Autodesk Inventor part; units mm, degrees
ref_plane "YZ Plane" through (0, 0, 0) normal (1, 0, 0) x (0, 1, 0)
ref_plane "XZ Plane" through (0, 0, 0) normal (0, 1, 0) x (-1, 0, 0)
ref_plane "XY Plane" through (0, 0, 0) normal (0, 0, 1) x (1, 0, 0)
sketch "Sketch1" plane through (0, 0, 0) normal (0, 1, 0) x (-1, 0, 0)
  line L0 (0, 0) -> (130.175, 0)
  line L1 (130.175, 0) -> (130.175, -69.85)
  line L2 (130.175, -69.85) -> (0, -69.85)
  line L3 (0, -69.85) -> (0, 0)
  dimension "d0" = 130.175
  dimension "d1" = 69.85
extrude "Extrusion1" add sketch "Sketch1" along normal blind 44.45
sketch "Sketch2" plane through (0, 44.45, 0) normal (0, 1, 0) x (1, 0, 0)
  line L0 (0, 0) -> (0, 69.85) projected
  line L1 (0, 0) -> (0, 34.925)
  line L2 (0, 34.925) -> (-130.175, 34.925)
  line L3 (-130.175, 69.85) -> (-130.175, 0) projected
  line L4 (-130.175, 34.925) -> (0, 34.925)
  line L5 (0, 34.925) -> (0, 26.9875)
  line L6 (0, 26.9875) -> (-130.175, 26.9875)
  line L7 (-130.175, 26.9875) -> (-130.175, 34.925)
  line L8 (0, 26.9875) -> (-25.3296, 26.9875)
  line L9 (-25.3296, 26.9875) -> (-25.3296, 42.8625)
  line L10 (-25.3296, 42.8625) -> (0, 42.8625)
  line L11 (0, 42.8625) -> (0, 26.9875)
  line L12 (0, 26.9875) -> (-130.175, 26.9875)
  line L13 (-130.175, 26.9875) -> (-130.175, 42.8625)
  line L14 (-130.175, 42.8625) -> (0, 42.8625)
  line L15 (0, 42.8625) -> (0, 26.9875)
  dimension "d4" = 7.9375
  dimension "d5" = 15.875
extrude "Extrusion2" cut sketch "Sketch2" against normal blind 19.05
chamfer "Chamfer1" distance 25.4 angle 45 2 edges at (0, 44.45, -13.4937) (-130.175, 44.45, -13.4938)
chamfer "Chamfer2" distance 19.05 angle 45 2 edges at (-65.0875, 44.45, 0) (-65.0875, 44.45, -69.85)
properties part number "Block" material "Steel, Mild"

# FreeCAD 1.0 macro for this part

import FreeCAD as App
import Part
import Sketcher

V = App.Vector
Q = App.Units.Quantity


def edges_at(feature, points):
    """Names of the edges that pass closest to the given points."""
    edges = feature.Shape.Edges
    near = lambda p: min(range(len(edges)), key=lambda i: edges[i].distToShape(Part.Vertex(*p))[0])
    return sorted({f"Edge{near(p) + 1}" for p in points})

doc = App.newDocument("Part")
body = doc.addObject("PartDesign::Body", "Body")

# Sketch on XZ plane
sketch1 = body.newObject("Sketcher::SketchObject", "Sketch")
sketch1.AttachmentSupport = (doc.getObject("XZ_Plane"), [""])
sketch1.MapMode = "FlatFace"
sketch1.addGeometry([
    Part.LineSegment(V(-130, 0, 0), V(0, 0, 0)),
    Part.LineSegment(V(0, 0, 0), V(0, -70, 0)),
    Part.LineSegment(V(0, -70, 0), V(-130, -70, 0)),
    Part.LineSegment(V(-130, -70, 0), V(-130, 0, 0)),
], False)
sketch1.addConstraint([
    Sketcher.Constraint("Coincident", 0, 2, 1, 1),
    Sketcher.Constraint("Coincident", 1, 2, 2, 1),
    Sketcher.Constraint("Coincident", 2, 2, 3, 1),
    Sketcher.Constraint("Coincident", 3, 2, 0, 1),
    Sketcher.Constraint("Horizontal", 0),
    Sketcher.Constraint("Vertical", 1),
    Sketcher.Constraint("Horizontal", 2),
    Sketcher.Constraint("Vertical", 3),
    Sketcher.Constraint("Coincident", 0, 2, -1, 1),
    Sketcher.Constraint("DistanceY", 1, 2, 1, 1, Q("2.75 in")),
    Sketcher.Constraint("DistanceX", 0, 1, 0, 2, Q("5.125 in")),
])
pad1 = body.newObject("PartDesign::Pad", "Pad")
pad1.Profile = sketch1
pad1.Length = Q("1.75 in")
pad1.Reversed = True

# Sketch on XZ plane
sketch2 = body.newObject("Sketcher::SketchObject", "Sketch001")
sketch2.AttachmentSupport = (doc.getObject("XZ_Plane"), [""])
sketch2.MapMode = "FlatFace"
sketch2.AttachmentOffset = App.Placement(V(0, 0, -1.75 * 25.4), App.Rotation())
sketch2.addGeometry([
    Part.LineSegment(V(0, -27, 0), V(0, -43, 0)),
    Part.LineSegment(V(0, -43, 0), V(-130, -43, 0)),
    Part.LineSegment(V(-130, -43, 0), V(-130, -27, 0)),
    Part.LineSegment(V(-130, -27, 0), V(0, -27, 0)),
], False)
sketch2.addConstraint([
    Sketcher.Constraint("Coincident", 0, 2, 1, 1),
    Sketcher.Constraint("Coincident", 1, 2, 2, 1),
    Sketcher.Constraint("Coincident", 2, 2, 3, 1),
    Sketcher.Constraint("Coincident", 3, 2, 0, 1),
    Sketcher.Constraint("Vertical", 0),
    Sketcher.Constraint("Horizontal", 1),
    Sketcher.Constraint("Vertical", 2),
    Sketcher.Constraint("Horizontal", 3),
    Sketcher.Constraint("PointOnObject", 0, 2, -2),
    Sketcher.Constraint("DistanceY", 0, 2, 0, 1, Q("0.625 in")),
    Sketcher.Constraint("DistanceX", 1, 2, 1, 1, Q("5.125 in")),
    Sketcher.Constraint("DistanceY", 0, 2, -1, 1, Q("1.6875 in")),
])
pocket1 = body.newObject("PartDesign::Pocket", "Pocket")
pocket1.Profile = sketch2
pocket1.Length = Q("0.75 in")
pocket1.Reversed = True
doc.recompute()

chamfer = body.newObject("PartDesign::Chamfer", "Chamfer")
chamfer.Base = (pocket1, edges_at(pocket1, [(0, 44.45, -13.494), (-130.175, 44.45, -13.494)]))
chamfer.Size = Q("1 in")
doc.recompute()

chamfer2 = body.newObject("PartDesign::Chamfer", "Chamfer001")
chamfer2.Base = (chamfer, edges_at(chamfer, [(-65.088, 44.45, 0), (-65.088, 44.45, -69.85)]))
chamfer2.Size = Q("0.75 in")

doc.recompute()
